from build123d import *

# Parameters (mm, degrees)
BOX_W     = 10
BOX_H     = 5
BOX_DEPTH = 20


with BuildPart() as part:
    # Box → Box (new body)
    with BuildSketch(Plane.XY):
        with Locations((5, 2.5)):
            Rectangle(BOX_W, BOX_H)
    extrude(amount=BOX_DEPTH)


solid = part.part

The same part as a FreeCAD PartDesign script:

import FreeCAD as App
import Part
import Sketcher
Q = App.Units.Quantity


def add_polygon(sketch, points):
    """Adds a closed chain of lines whose ends are joined by coincident constraints."""
    first, n = sketch.GeometryCount, len(points)
    for a, b in zip(points, points[1:] + points[:1]):
        sketch.addGeometry(Part.LineSegment(App.Vector(*a, 0), App.Vector(*b, 0)), False)
    for i in range(n):
        sketch.addConstraint(Sketcher.Constraint("Coincident", first + i, 2, first + (i + 1) % n, 1))

doc = App.newDocument("Part")
body = doc.addObject("PartDesign::Body", "Body")

sketch1 = doc.addObject("Sketcher::SketchObject", "Sketch")
body.addObject(sketch1)
sketch1.AttachmentSupport = (doc.XY_Plane, [""])
sketch1.MapMode = "FlatFace"
add_polygon(sketch1, [(0, 5), (0, 0), (10, 0), (10, 5)])
sketch1.addConstraint(Sketcher.Constraint("Vertical", 0))
sketch1.addConstraint(Sketcher.Constraint("Horizontal", 1))
sketch1.addConstraint(Sketcher.Constraint("Vertical", 2))
sketch1.addConstraint(Sketcher.Constraint("Horizontal", 3))
sketch1.addConstraint(Sketcher.Constraint("Coincident", 0, 2, -1, 1))
sketch1.addConstraint(Sketcher.Constraint("DistanceX", 1, 1, 1, 2, Q("10 mm")))
sketch1.addConstraint(Sketcher.Constraint("DistanceY", 0, 2, 0, 1, Q("5 mm")))
pad1 = doc.addObject("PartDesign::Pad", "Pad")
body.addObject(pad1)
pad1.Profile = sketch1
pad1.Length = 20

doc.recompute()
